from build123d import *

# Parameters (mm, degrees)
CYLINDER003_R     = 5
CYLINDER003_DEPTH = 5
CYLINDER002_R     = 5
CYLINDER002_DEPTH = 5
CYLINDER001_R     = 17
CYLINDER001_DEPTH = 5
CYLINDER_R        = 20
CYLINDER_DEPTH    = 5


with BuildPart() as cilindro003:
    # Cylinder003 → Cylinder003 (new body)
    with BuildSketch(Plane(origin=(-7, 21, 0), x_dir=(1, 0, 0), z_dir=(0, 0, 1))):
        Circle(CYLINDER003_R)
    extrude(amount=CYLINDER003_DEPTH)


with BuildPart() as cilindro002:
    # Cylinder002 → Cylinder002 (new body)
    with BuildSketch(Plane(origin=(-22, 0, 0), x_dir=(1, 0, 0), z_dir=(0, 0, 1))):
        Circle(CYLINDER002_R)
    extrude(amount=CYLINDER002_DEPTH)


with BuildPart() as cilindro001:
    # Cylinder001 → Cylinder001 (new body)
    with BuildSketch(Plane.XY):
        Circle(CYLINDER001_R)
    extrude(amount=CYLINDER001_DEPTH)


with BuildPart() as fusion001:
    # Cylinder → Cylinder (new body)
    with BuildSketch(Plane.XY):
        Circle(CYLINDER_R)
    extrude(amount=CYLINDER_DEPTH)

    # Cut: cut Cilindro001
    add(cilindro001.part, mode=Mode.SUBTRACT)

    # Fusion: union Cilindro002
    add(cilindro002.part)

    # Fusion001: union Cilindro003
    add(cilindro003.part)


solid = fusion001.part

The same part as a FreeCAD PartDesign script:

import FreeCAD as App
import Part
import Sketcher
from FreeCAD import Vector
Q = App.Units.Quantity

doc = App.newDocument("Part")
body = doc.addObject("PartDesign::Body", "Body")

# Sketch on XY plane
sketch1 = body.newObject("Sketcher::SketchObject", "Sketch")
sketch1.AttachmentSupport = (doc.getObject("XY_Plane"), [""])
sketch1.MapMode = "FlatFace"
sketch1.addGeometry(Part.Circle(Vector(-7, 21, 0), Vector(0, 0, 1), 5), False)
sketch1.addConstraint([
    Sketcher.Constraint("Diameter", 0, Q("10 mm")),
    Sketcher.Constraint("DistanceX", 0, 3, -1, 1, Q("7 mm")),
    Sketcher.Constraint("DistanceY", -1, 1, 0, 3, Q("21 mm")),
])
pad1 = body.newObject("PartDesign::Pad", "Pad")
pad1.Profile = sketch1
pad1.Length = 5
body2 = doc.addObject("PartDesign::Body", "Body001")

# Sketch on XY plane
sketch2 = body2.newObject("Sketcher::SketchObject", "Sketch001")
sketch2.AttachmentSupport = (doc.getObject("XY_Plane001"), [""])
sketch2.MapMode = "FlatFace"
sketch2.addGeometry(Part.Circle(Vector(-22, 0, 0), Vector(0, 0, 1), 5), False)
sketch2.addConstraint([
    Sketcher.Constraint("PointOnObject", 0, 3, -1),
    Sketcher.Constraint("Diameter", 0, Q("10 mm")),
    Sketcher.Constraint("DistanceX", 0, 3, -1, 1, Q("22 mm")),
])
pad2 = body2.newObject("PartDesign::Pad", "Pad001")
pad2.Profile = sketch2
pad2.Length = 5
body3 = doc.addObject("PartDesign::Body", "Body002")

# Sketch on XY plane
sketch3 = body3.newObject("Sketcher::SketchObject", "Sketch002")
sketch3.AttachmentSupport = (doc.getObject("XY_Plane002"), [""])
sketch3.MapMode = "FlatFace"
sketch3.addGeometry(Part.Circle(Vector(0, 0, 0), Vector(0, 0, 1), 17), False)
sketch3.addConstraint([
    Sketcher.Constraint("Coincident", 0, 3, -1, 1),
    Sketcher.Constraint("Diameter", 0, Q("34 mm")),
])
pad3 = body3.newObject("PartDesign::Pad", "Pad002")
pad3.Profile = sketch3
pad3.Length = 5
body4 = doc.addObject("PartDesign::Body", "Body003")

# Sketch on XY plane
sketch4 = body4.newObject("Sketcher::SketchObject", "Sketch003")
sketch4.AttachmentSupport = (doc.getObject("XY_Plane003"), [""])
sketch4.MapMode = "FlatFace"
sketch4.addGeometry(Part.Circle(Vector(0, 0, 0), Vector(0, 0, 1), 20), False)
sketch4.addConstraint([
    Sketcher.Constraint("Coincident", 0, 3, -1, 1),
    Sketcher.Constraint("Diameter", 0, Q("40 mm")),
])
pad4 = body4.newObject("PartDesign::Pad", "Pad003")
pad4.Profile = sketch4
pad4.Length = 5
doc.recompute()

boolean = body4.newObject("PartDesign::Boolean", "Boolean")
boolean.Type = "Cut"
boolean.addObjects([body3])
doc.recompute()

boolean2 = body4.newObject("PartDesign::Boolean", "Boolean001")
boolean2.Type = "Fuse"
boolean2.addObjects([body2])
doc.recompute()

boolean3 = body4.newObject("PartDesign::Boolean", "Boolean002")
boolean3.Type = "Fuse"
boolean3.addObjects([body])

doc.recompute()
